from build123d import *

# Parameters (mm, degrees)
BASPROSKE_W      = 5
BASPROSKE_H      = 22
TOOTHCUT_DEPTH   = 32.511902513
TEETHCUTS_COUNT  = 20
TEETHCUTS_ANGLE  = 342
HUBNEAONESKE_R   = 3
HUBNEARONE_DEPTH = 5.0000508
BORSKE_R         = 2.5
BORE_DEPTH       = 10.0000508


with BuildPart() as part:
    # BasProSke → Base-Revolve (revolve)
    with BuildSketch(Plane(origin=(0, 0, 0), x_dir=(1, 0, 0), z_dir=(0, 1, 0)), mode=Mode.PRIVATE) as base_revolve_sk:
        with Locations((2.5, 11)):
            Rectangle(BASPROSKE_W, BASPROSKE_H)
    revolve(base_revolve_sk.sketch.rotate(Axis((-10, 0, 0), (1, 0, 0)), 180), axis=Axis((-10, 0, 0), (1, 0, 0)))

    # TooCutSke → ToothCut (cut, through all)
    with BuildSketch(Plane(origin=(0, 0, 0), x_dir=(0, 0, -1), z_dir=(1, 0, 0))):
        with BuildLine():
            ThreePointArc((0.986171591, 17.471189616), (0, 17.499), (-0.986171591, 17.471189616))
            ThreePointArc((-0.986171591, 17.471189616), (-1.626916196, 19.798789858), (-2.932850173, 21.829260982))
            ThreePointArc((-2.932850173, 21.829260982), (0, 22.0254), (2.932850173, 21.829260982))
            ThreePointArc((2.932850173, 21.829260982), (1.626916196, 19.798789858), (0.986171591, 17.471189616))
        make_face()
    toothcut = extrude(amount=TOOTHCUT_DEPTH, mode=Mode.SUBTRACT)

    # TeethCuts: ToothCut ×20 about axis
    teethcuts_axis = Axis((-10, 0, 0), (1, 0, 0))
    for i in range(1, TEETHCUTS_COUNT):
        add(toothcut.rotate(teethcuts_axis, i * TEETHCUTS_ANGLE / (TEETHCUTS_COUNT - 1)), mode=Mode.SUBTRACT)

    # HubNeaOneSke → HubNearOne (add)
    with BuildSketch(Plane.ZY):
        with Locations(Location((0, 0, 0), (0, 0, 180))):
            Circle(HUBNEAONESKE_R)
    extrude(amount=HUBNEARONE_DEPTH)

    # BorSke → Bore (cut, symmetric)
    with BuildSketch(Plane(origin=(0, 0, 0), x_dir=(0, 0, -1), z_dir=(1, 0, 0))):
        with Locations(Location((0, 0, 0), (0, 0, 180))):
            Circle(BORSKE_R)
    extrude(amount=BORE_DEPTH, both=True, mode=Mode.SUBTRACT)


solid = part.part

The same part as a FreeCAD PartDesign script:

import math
import FreeCAD as App
import Part
import Sketcher

V = App.Vector
Q = App.Units.Quantity

doc = App.newDocument("Part")
body = doc.addObject("PartDesign::Body", "Body")

# Sketch on XZ plane
sketch1 = body.newObject("Sketcher::SketchObject", "Sketch")
sketch1.AttachmentSupport = (doc.getObject("XZ_Plane"), [""])
sketch1.MapMode = "FlatFace"
sketch1.addGeometry([
    Part.LineSegment(V(0, -22, 0), V(0, 0, 0)),
    Part.LineSegment(V(0, 0, 0), V(5, 0, 0)),
    Part.LineSegment(V(5, 0, 0), V(5, -22, 0)),
    Part.LineSegment(V(5, -22, 0), V(0, -22, 0)),
], False)
sketch1.addConstraint([
    Sketcher.Constraint("Coincident", 0, 2, 1, 1),
    Sketcher.Constraint("Coincident", 1, 2, 2, 1),
    Sketcher.Constraint("Coincident", 2, 2, 3, 1),
    Sketcher.Constraint("Coincident", 3, 2, 0, 1),
    Sketcher.Constraint("Vertical", 0),
    Sketcher.Constraint("Horizontal", 1),
    Sketcher.Constraint("Vertical", 2),
    Sketcher.Constraint("Horizontal", 3),
    Sketcher.Constraint("Coincident", 0, 2, -1, 1),
    Sketcher.Constraint("DistanceX", 1, 1, 1, 2, Q("5 mm")),
    Sketcher.Constraint("DistanceY", 0, 1, 0, 2, Q("22 mm")),
])
revolution = body.newObject("PartDesign::Revolution", "Revolution")
revolution.Profile = sketch1
revolution.ReferenceAxis = (sketch1, ["H_Axis"])
revolution.Angle = 360

# Sketch on YZ plane
sketch2 = body.newObject("Sketcher::SketchObject", "Sketch001")
sketch2.AttachmentSupport = (doc.getObject("YZ_Plane"), [""])
sketch2.MapMode = "FlatFace"
sketch2.addGeometry([
    Part.ArcOfCircle(Part.Circle(V(0, 0, 0), V(0, 0, 1), 17.5), math.radians(-3.23), math.radians(3.23)),
    Part.ArcOfCircle(Part.Circle(V(16.5, -8.9, 0), V(0, 0, 1), 8), math.radians(49), math.radians(83)),
    Part.ArcOfCircle(Part.Circle(V(0, 0, 0), V(0, 0, 1), 22), math.radians(-7.65), math.radians(7.65)),
    Part.ArcOfCircle(Part.Circle(V(16.5, 8.9, 0), V(0, 0, 1), 8), math.radians(-83), math.radians(-49)),
], False)
sketch2.addConstraint([
    Sketcher.Constraint("Coincident", 0, 1, 1, 2),
    Sketcher.Constraint("Coincident", 1, 1, 2, 1),
    Sketcher.Constraint("Coincident", 2, 2, 3, 2),
    Sketcher.Constraint("Coincident", 3, 1, 0, 2),
    Sketcher.Constraint("Coincident", 0, 3, -1, 1),
    Sketcher.Constraint("Coincident", 2, 3, -1, 1),
    Sketcher.Constraint("Equal", 1, 3),
    Sketcher.Constraint("Symmetric", 1, 3, 3, 3, -1),
    Sketcher.Constraint("Radius", 1, Q("8 mm")),
    Sketcher.Constraint("Radius", 0, Q("17.499 mm")),
    Sketcher.Constraint("Radius", 2, Q("22.0254 mm")),
    Sketcher.Constraint("DistanceY", 1, 1, 2, 2, Q("5.8657 mm")),
    Sketcher.Constraint("DistanceX", -1, 1, 1, 3, Q("16.536031 mm")),
])
pocket1 = body.newObject("PartDesign::Pocket", "Pocket")
pocket1.Profile = sketch2
pocket1.Type = "ThroughAll"
pocket1.Reversed = True
doc.recompute()

polarpattern = body.newObject("PartDesign::PolarPattern", "PolarPattern")
polarpattern.Originals = [pocket1]
polarpattern.Axis = (doc.getObject("X_Axis"), [""])
polarpattern.Angle = 360
polarpattern.Occurrences = 20
body.Tip = polarpattern

# Sketch on YZ plane
sketch3 = body.newObject("Sketcher::SketchObject", "Sketch002")
sketch3.AttachmentSupport = (doc.getObject("YZ_Plane"), [""])
sketch3.MapMode = "FlatFace"
sketch3.addGeometry(Part.Circle(V(0, 0, 0), V(0, 0, 1), 3), False)
sketch3.addConstraint([
    Sketcher.Constraint("Coincident", 0, 3, -1, 1),
    Sketcher.Constraint("Diameter", 0, Q("6 mm")),
])
pad1 = body.newObject("PartDesign::Pad", "Pad")
pad1.Profile = sketch3
pad1.Length = 5.000051
pad1.Reversed = True

# Sketch on YZ plane
sketch4 = body.newObject("Sketcher::SketchObject", "Sketch003")
sketch4.AttachmentSupport = (doc.getObject("YZ_Plane"), [""])
sketch4.MapMode = "FlatFace"
sketch4.addGeometry(Part.Circle(V(0, 0, 0), V(0, 0, 1), 2.5), False)
sketch4.addConstraint([
    Sketcher.Constraint("Coincident", 0, 3, -1, 1),
    Sketcher.Constraint("Diameter", 0, Q("5 mm")),
])
pocket2 = body.newObject("PartDesign::Pocket", "Pocket001")
pocket2.Profile = sketch4
pocket2.Length = 20.000102
pocket2.Midplane = True

doc.recompute()
